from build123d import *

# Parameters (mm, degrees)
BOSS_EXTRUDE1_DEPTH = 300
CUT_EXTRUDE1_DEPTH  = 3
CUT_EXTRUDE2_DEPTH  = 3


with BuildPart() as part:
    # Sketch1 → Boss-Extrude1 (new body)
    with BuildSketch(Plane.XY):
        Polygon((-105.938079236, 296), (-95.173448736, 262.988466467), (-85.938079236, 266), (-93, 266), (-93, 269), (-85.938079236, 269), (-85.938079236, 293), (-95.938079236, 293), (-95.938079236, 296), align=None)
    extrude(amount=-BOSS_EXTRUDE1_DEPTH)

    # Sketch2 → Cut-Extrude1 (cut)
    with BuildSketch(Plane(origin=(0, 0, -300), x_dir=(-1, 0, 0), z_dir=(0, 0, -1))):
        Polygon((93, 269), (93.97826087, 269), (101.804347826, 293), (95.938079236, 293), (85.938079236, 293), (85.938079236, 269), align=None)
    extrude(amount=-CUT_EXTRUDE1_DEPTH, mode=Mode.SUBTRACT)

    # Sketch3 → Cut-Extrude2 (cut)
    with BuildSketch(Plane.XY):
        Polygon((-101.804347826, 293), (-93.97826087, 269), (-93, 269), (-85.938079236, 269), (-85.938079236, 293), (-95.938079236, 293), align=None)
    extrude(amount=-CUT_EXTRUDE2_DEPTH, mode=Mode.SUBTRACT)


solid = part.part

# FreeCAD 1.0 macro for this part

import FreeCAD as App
import Part
import Sketcher
from FreeCAD import Vector


def add_polygon(sketch, points):
    """Adds a closed chain of lines whose ends are joined by coincident constraints."""
    first, n = sketch.GeometryCount, len(points)
    for a, b in zip(points, points[1:] + points[:1]):
        sketch.addGeometry(Part.LineSegment(App.Vector(*a, 0), App.Vector(*b, 0)), False)
    for i in range(n):
        sketch.addConstraint(Sketcher.Constraint("Coincident", first + i, 2, first + (i + 1) % n, 1))

doc = App.newDocument("Part")
body = doc.addObject("PartDesign::Body", "Body")

# Sketch on XY plane
sketch1 = doc.addObject("Sketcher::SketchObject", "Sketch")
body.addObject(sketch1)
sketch1.AttachmentSupport = (doc.XY_Plane, [""])
sketch1.MapMode = "FlatFace"
add_polygon(sketch1, [(-105.9, 296), (-95.2, 263), (-85.9, 266), (-93, 266), (-93, 269), (-85.9, 269), (-85.9, 293), (-95.9, 293), (-95.9, 296)])  # lines 0-8
sketch1.addConstraint([
    Sketcher.Constraint("Horizontal", 2),
    Sketcher.Constraint("Vertical", 3),
    Sketcher.Constraint("Horizontal", 4),
    Sketcher.Constraint("Vertical", 5),
    Sketcher.Constraint("Horizontal", 6),
    Sketcher.Constraint("Vertical", 7),
    Sketcher.Constraint("Horizontal", 8),
    Sketcher.Constraint("Perpendicular", 0, 1),
    Sketcher.Constraint("Vertical", 1, 2, 4, 2),
    Sketcher.Constraint("Equal", 6, 8),
    Sketcher.Constraint("Equal", 3, 7),
    Sketcher.Constraint("DistanceX", 6, 2, 6, 1, 10.0),
    Sketcher.Constraint("DistanceY", 3, 1, 3, 2, 3.0),
    Sketcher.Constraint("DistanceY", 5, 1, 5, 2, 24.0),
    Sketcher.Constraint("DistanceY", -1, 1, 1, 2, 266.0),
    Sketcher.Constraint("DistanceX", 2, 2, -1, 1, 93.0),
    Sketcher.Constraint("DistanceX", 2, 2, 2, 1, 7.061921),
    Sketcher.Constraint("Distance", 1, 9.713979),
])
pad1 = doc.addObject("PartDesign::Pad", "Pad")
body.addObject(pad1)
pad1.Profile = sketch1
pad1.Length = 300
pad1.Reversed = True

# Sketch on XY plane
sketch2 = doc.addObject("Sketcher::SketchObject", "Sketch001")
body.addObject(sketch2)
sketch2.AttachmentSupport = (doc.XY_Plane, [""])
sketch2.MapMode = "FlatFace"
sketch2.AttachmentOffset = App.Placement(Vector(0, 0, -300), App.Rotation())
add_polygon(sketch2, [(-94, 269), (-102, 293), (-86, 293), (-86, 269)])  # lines 0-3
sketch2.addConstraint([
    Sketcher.Constraint("Horizontal", 1),
    Sketcher.Constraint("Vertical", 2),
    Sketcher.Constraint("Horizontal", 3),
    Sketcher.Constraint("DistanceY", 2, 2, 2, 1, 24.0),
    Sketcher.Constraint("DistanceY", -1, 1, 0, 2, 293.0),
    Sketcher.Constraint("DistanceX", 1, 1, 1, 2, 15.866269),
    Sketcher.Constraint("DistanceX", 3, 2, 3, 1, 8.040182),
    Sketcher.Constraint("DistanceX", 1, 2, -1, 1, 85.938079),
])
pocket1 = doc.addObject("PartDesign::Pocket", "Pocket")
body.addObject(pocket1)
pocket1.Profile = sketch2
pocket1.Length = 3
pocket1.Reversed = True

# Sketch on XY plane
sketch3 = doc.addObject("Sketcher::SketchObject", "Sketch002")
body.addObject(sketch3)
sketch3.AttachmentSupport = (doc.XY_Plane, [""])
sketch3.MapMode = "FlatFace"
add_polygon(sketch3, [(-102, 293), (-94, 269), (-86, 269), (-86, 293)])  # lines 0-3
sketch3.addConstraint([
    Sketcher.Constraint("Horizontal", 1),
    Sketcher.Constraint("Vertical", 2),
    Sketcher.Constraint("Horizontal", 3),
    Sketcher.Constraint("DistanceY", 2, 1, 2, 2, 24.0),
    Sketcher.Constraint("DistanceY", -1, 1, 0, 2, 269.0),
    Sketcher.Constraint("DistanceX", 1, 1, 1, 2, 8.040182),
    Sketcher.Constraint("DistanceX", 3, 2, 3, 1, 15.866269),
    Sketcher.Constraint("DistanceX", 0, 2, -1, 1, 93.978261),
])
pocket2 = doc.addObject("PartDesign::Pocket", "Pocket001")
body.addObject(pocket2)
pocket2.Profile = sketch3
pocket2.Length = 3

doc.recompute()
